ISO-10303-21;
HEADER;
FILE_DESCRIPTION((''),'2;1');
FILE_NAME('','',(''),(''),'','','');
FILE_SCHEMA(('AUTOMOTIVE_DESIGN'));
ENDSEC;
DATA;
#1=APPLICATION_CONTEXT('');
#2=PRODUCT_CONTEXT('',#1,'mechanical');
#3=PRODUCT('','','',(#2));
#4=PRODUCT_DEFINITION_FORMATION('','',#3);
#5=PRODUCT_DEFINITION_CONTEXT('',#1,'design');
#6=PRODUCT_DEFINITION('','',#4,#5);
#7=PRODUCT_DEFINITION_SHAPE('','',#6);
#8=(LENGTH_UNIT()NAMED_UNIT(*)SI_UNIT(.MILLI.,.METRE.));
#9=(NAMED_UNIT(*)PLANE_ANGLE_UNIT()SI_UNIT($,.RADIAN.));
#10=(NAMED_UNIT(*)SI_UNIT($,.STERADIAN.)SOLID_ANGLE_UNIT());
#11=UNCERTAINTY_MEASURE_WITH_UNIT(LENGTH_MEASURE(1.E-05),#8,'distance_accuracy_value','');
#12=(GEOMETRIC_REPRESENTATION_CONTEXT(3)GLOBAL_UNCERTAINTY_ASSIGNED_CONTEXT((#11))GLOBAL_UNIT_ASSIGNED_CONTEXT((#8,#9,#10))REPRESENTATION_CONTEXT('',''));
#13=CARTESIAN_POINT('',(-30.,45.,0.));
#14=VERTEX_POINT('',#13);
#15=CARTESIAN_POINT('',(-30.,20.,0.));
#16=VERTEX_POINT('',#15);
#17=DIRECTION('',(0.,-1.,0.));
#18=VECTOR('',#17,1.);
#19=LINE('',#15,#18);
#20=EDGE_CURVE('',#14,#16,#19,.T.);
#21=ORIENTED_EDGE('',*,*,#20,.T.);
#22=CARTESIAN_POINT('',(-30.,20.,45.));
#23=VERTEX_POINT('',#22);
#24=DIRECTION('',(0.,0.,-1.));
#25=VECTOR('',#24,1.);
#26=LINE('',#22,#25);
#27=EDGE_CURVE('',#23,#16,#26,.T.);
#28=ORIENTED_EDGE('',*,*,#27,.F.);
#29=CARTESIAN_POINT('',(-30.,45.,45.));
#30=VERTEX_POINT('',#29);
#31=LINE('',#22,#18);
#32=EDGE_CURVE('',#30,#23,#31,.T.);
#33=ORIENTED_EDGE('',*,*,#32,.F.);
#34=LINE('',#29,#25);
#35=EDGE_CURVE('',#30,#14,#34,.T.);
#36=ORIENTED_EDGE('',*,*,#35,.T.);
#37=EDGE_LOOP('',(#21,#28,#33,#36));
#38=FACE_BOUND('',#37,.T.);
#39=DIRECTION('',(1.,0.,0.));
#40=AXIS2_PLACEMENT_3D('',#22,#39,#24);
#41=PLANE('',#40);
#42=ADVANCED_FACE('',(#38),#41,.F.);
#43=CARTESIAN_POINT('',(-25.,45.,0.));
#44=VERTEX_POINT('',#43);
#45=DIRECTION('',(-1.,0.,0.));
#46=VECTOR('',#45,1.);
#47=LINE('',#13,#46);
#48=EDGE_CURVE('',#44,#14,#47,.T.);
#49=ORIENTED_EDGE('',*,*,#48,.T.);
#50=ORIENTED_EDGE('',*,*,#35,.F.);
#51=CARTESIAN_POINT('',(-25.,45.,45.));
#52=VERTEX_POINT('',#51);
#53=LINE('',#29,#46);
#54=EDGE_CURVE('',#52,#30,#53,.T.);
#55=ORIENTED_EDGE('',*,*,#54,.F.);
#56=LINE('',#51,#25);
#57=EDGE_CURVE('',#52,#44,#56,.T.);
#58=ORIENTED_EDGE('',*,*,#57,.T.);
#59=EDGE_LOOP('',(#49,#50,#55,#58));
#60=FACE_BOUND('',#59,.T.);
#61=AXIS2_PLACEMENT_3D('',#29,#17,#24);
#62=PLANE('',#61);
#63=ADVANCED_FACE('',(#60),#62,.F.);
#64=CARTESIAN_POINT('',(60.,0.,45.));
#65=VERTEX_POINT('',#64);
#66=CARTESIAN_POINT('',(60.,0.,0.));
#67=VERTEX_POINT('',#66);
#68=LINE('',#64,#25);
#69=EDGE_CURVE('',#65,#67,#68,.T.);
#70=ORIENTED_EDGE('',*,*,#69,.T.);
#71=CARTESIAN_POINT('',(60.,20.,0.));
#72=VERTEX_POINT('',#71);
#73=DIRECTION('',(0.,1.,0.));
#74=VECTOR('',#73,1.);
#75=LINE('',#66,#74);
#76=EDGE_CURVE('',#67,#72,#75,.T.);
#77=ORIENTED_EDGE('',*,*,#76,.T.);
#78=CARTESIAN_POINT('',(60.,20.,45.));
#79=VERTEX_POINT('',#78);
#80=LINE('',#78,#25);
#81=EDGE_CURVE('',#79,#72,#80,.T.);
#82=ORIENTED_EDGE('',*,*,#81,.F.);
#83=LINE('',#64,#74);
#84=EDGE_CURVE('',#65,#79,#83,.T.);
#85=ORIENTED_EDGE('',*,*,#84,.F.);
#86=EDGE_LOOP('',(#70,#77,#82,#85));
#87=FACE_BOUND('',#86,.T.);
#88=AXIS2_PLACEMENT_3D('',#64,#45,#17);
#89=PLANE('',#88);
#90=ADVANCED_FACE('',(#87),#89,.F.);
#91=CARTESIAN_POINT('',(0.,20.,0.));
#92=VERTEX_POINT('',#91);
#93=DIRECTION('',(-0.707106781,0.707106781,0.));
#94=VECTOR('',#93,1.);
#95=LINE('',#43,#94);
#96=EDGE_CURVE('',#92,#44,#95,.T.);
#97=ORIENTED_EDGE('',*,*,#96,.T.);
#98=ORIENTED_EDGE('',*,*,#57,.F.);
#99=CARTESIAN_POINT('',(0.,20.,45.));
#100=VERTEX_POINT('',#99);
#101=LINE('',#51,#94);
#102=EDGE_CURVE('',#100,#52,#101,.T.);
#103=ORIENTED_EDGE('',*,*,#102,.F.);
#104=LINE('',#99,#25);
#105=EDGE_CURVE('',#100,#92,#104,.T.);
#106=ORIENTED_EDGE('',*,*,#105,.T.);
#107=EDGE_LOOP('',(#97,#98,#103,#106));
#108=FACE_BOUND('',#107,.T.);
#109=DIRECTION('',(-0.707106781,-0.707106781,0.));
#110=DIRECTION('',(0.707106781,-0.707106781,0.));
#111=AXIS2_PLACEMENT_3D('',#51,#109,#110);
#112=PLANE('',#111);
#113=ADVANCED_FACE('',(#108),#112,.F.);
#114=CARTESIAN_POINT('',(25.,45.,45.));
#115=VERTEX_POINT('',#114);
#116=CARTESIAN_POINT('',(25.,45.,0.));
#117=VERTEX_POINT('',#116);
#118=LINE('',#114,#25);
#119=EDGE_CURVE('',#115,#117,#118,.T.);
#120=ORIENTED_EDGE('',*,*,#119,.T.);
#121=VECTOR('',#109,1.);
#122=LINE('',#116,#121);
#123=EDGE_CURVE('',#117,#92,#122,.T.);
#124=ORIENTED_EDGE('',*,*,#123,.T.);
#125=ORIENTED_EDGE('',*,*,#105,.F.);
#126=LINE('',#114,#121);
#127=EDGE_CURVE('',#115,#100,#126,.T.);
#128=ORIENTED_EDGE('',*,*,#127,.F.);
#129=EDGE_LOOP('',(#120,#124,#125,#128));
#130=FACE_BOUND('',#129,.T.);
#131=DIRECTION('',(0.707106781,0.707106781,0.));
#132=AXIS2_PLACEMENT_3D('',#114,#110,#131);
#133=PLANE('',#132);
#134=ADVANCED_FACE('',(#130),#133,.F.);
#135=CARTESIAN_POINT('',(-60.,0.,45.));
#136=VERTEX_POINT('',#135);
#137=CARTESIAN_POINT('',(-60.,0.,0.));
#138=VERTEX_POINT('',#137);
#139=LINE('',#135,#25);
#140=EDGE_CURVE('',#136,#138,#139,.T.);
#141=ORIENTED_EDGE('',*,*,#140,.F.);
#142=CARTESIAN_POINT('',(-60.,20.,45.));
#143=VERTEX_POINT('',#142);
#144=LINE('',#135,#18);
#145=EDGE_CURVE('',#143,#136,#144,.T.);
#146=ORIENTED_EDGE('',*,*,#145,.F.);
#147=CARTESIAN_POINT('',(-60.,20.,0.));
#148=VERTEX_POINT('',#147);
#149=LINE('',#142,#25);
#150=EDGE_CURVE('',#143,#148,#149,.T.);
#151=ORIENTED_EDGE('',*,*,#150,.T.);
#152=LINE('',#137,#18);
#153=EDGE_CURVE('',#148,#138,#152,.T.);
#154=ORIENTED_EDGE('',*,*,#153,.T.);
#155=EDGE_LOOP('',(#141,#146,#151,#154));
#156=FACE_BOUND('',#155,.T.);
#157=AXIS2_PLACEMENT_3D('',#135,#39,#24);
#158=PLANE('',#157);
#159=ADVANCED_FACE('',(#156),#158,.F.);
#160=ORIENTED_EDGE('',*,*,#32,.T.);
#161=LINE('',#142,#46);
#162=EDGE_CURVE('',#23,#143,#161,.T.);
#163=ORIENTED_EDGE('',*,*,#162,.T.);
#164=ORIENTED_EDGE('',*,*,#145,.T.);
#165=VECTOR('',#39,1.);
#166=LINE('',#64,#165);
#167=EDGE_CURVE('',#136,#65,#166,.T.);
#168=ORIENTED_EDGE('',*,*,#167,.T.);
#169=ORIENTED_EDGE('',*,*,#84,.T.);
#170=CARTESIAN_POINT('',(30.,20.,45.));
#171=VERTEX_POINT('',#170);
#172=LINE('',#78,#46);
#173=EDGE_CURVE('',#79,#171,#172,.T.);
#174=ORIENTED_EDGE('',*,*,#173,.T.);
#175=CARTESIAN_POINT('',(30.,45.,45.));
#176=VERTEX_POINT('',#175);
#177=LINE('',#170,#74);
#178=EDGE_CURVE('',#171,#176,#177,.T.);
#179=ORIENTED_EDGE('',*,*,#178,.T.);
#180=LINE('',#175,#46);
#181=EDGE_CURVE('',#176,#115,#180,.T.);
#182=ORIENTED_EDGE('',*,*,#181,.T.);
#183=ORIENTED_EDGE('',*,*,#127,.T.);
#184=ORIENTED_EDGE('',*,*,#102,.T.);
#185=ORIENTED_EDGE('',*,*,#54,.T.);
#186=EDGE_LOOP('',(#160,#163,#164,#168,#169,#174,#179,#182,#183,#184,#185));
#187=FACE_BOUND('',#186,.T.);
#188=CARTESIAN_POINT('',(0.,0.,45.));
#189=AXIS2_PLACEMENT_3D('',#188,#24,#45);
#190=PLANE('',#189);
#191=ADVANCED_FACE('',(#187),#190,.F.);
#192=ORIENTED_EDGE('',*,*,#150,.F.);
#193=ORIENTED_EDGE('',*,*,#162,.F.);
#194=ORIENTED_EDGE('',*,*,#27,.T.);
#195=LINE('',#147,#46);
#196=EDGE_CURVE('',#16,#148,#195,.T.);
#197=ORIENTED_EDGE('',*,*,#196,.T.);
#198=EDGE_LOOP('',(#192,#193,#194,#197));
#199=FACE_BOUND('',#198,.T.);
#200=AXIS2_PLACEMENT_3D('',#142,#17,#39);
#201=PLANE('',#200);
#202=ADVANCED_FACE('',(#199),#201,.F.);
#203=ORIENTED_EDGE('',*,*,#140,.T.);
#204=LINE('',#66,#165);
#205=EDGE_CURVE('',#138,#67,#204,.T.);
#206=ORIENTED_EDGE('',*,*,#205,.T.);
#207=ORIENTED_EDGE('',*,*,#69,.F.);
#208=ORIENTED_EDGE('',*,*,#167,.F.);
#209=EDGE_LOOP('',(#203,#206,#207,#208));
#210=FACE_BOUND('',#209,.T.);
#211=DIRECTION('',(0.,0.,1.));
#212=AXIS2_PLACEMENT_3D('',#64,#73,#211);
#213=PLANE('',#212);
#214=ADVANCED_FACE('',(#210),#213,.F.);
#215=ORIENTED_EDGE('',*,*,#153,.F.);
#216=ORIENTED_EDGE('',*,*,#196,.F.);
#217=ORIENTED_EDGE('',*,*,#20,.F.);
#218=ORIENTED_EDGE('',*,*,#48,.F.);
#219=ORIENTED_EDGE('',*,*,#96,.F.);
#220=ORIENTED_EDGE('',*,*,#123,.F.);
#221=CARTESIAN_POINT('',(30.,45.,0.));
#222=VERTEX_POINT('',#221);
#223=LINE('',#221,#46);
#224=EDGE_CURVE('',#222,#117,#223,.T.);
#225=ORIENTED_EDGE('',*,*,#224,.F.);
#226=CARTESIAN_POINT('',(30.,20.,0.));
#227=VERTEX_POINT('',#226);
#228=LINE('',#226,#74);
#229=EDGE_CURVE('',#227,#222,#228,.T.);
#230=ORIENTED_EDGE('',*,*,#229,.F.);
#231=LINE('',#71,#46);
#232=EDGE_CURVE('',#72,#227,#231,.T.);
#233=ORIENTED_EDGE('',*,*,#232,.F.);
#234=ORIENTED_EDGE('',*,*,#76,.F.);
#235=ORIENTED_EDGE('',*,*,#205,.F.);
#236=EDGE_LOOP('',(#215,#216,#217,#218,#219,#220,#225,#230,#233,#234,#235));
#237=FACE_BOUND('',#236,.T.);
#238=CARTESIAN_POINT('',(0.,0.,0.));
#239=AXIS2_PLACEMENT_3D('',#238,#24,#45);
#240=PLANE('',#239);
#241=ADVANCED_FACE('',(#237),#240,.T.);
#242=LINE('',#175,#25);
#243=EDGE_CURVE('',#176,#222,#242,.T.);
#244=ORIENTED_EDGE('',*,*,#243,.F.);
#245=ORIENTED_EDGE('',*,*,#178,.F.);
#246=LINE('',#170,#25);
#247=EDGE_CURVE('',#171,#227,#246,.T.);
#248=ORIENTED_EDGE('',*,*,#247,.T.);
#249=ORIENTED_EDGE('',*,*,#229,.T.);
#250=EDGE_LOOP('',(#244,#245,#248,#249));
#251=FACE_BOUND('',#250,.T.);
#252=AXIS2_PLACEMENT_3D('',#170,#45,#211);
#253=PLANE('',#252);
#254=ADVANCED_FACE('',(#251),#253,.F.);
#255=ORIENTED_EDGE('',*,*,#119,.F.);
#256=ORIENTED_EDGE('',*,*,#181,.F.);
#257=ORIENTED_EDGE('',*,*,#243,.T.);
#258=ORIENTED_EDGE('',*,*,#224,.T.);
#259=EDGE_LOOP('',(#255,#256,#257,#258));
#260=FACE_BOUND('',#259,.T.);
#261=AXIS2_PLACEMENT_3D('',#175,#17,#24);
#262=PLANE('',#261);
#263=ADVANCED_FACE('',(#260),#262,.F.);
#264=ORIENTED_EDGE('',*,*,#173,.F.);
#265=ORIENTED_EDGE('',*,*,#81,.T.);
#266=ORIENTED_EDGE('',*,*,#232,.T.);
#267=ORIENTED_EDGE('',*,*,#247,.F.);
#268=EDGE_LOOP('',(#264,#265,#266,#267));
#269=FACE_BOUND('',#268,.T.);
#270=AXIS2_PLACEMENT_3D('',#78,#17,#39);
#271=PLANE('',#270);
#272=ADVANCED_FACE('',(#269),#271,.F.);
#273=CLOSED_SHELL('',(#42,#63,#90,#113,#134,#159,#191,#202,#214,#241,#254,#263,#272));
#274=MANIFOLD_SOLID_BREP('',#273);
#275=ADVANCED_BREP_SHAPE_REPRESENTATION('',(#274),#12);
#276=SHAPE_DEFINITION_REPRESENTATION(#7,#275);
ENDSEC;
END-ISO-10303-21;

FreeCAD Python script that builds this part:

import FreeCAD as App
import Part
import Sketcher
Q = App.Units.Quantity


def add_polygon(sketch, points):
    """Adds a closed chain of lines whose ends are joined by coincident constraints."""
    first, n = sketch.GeometryCount, len(points)
    for a, b in zip(points, points[1:] + points[:1]):
        sketch.addGeometry(Part.LineSegment(App.Vector(*a, 0), App.Vector(*b, 0)), False)
    for i in range(n):
        sketch.addConstraint(Sketcher.Constraint("Coincident", first + i, 2, first + (i + 1) % n, 1))

doc = App.newDocument("Part")
body = doc.addObject("PartDesign::Body", "Body")

# Sketch on XY plane
sketch1 = doc.addObject("Sketcher::SketchObject", "Sketch")
body.addObject(sketch1)
sketch1.AttachmentSupport = (doc.XY_Plane, [""])
sketch1.MapMode = "FlatFace"
add_polygon(sketch1, [(-60, 0), (60, 0), (60, 20), (30, 20), (30, 45), (25, 45), (0, 20), (-25, 45), (-30, 45), (-30, 20), (-60, 20)])  # lines 0-10
sketch1.addConstraint(Sketcher.Constraint("Horizontal", 0))
sketch1.addConstraint(Sketcher.Constraint("Vertical", 1))
sketch1.addConstraint(Sketcher.Constraint("Horizontal", 2))
sketch1.addConstraint(Sketcher.Constraint("Vertical", 3))
sketch1.addConstraint(Sketcher.Constraint("Horizontal", 4))
sketch1.addConstraint(Sketcher.Constraint("Horizontal", 7))
sketch1.addConstraint(Sketcher.Constraint("Vertical", 8))
sketch1.addConstraint(Sketcher.Constraint("Horizontal", 9))
sketch1.addConstraint(Sketcher.Constraint("Vertical", 10))
sketch1.addConstraint(Sketcher.Constraint("Symmetric", 0, 2, 10, 2, -1, 1))
sketch1.addConstraint(Sketcher.Constraint("Symmetric", 4, 2, 6, 2, -2))
sketch1.addConstraint(Sketcher.Constraint("Symmetric", 2, 2, 8, 2, -2))
sketch1.addConstraint(Sketcher.Constraint("PointOnObject", 5, 2, -2))
sketch1.addConstraint(Sketcher.Constraint("Perpendicular", 5, 6))
sketch1.addConstraint(Sketcher.Constraint("Horizontal", 2, 2, 5, 2))
sketch1.addConstraint(Sketcher.Constraint("DistanceX", 0, 1, 0, 2, Q("120 mm")))
sketch1.addConstraint(Sketcher.Constraint("DistanceX", 2, 2, 2, 1, Q("30 mm")))
sketch1.addConstraint(Sketcher.Constraint("DistanceX", 4, 2, 4, 1, Q("5 mm")))
sketch1.addConstraint(Sketcher.Constraint("DistanceY", 1, 1, 1, 2, Q("20 mm")))
pad1 = doc.addObject("PartDesign::Pad", "Pad")
body.addObject(pad1)
pad1.Profile = sketch1
pad1.Length = 45

doc.recompute()
